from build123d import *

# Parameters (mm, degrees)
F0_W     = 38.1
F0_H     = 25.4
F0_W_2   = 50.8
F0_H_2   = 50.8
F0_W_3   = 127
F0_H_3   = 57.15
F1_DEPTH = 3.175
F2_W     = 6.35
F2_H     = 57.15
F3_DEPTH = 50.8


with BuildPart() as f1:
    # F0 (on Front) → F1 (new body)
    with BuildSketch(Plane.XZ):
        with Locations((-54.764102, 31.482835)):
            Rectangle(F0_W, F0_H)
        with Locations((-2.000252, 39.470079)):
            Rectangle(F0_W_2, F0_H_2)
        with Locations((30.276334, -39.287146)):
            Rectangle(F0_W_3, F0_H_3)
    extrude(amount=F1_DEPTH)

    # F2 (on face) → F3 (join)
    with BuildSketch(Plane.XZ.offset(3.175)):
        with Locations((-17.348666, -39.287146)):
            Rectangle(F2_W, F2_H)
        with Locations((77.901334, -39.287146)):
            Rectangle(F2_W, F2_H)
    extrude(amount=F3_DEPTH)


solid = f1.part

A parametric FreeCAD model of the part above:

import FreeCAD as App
import Part
import Sketcher

V = App.Vector
Q = App.Units.Quantity

doc = App.newDocument("Part")
body = doc.addObject("PartDesign::Body", "Body")
body.AllowCompound = True

sketch1 = doc.addObject("Sketcher::SketchObject", "Sketch")
body.addObject(sketch1)
sketch1.AttachmentSupport = (doc.XZ_Plane, [""])
sketch1.MapMode = "FlatFace"
sketch1.addGeometry([
    Part.LineSegment(V(-74, 44, 0), V(-74, 19, 0)),
    Part.LineSegment(V(-74, 19, 0), V(-36, 19, 0)),
    Part.LineSegment(V(-36, 19, 0), V(-36, 44, 0)),
    Part.LineSegment(V(-36, 44, 0), V(-74, 44, 0)),
    Part.LineSegment(V(-27, 65, 0), V(-27, 14, 0)),
    Part.LineSegment(V(-27, 14, 0), V(23, 14, 0)),
    Part.LineSegment(V(23, 14, 0), V(23, 65, 0)),
    Part.LineSegment(V(23, 65, 0), V(-27, 65, 0)),
    Part.LineSegment(V(-33, -11, 0), V(-33, -68, 0)),
    Part.LineSegment(V(-33, -68, 0), V(94, -68, 0)),
    Part.LineSegment(V(94, -68, 0), V(94, -11, 0)),
    Part.LineSegment(V(94, -11, 0), V(-33, -11, 0)),
], False)
sketch1.addConstraint([
    Sketcher.Constraint("Coincident", 0, 2, 1, 1),
    Sketcher.Constraint("Coincident", 1, 2, 2, 1),
    Sketcher.Constraint("Coincident", 2, 2, 3, 1),
    Sketcher.Constraint("Coincident", 3, 2, 0, 1),
    Sketcher.Constraint("Coincident", 4, 2, 5, 1),
    Sketcher.Constraint("Coincident", 5, 2, 6, 1),
    Sketcher.Constraint("Coincident", 6, 2, 7, 1),
    Sketcher.Constraint("Coincident", 7, 2, 4, 1),
    Sketcher.Constraint("Coincident", 8, 2, 9, 1),
    Sketcher.Constraint("Coincident", 9, 2, 10, 1),
    Sketcher.Constraint("Coincident", 10, 2, 11, 1),
    Sketcher.Constraint("Coincident", 11, 2, 8, 1),
    Sketcher.Constraint("Vertical", 0),
    Sketcher.Constraint("Horizontal", 1),
    Sketcher.Constraint("Vertical", 2),
    Sketcher.Constraint("Horizontal", 3),
    Sketcher.Constraint("Vertical", 4),
    Sketcher.Constraint("Horizontal", 5),
    Sketcher.Constraint("Vertical", 6),
    Sketcher.Constraint("Horizontal", 7),
    Sketcher.Constraint("Vertical", 8),
    Sketcher.Constraint("Horizontal", 9),
    Sketcher.Constraint("Vertical", 10),
    Sketcher.Constraint("Horizontal", 11),
    Sketcher.Constraint("Equal", 7, 4),
    Sketcher.Constraint("DistanceX", 5, 1, 5, 2, Q("2 in")),
    Sketcher.Constraint("DistanceX", 9, 1, 9, 2, Q("5 in")),
    Sketcher.Constraint("DistanceY", 0, 2, 0, 1, Q("1 in")),
    Sketcher.Constraint("DistanceX", 1, 1, 1, 2, Q("1.5 in")),
    Sketcher.Constraint("DistanceY", 8, 2, 8, 1, Q("2.25 in")),
    Sketcher.Constraint("DistanceX", 1, 2, -1, 1, 35.714102),
    Sketcher.Constraint("DistanceX", 4, 2, -1, 1, 27.400252),
    Sketcher.Constraint("DistanceY", -1, 1, 4, 2, 14.070079),
    Sketcher.Constraint("DistanceY", 8, 2, 1, 2, 86.644981),
    Sketcher.Constraint("DistanceY", -1, 1, 0, 2, 18.782835),
    Sketcher.Constraint("DistanceX", 8, 2, -1, 1, 33.223666),
])
pad1 = doc.addObject("PartDesign::Pad", "Pad")
body.addObject(pad1)
pad1.Profile = sketch1
pad1.Length = Q("0.125 in")

sketch2 = doc.addObject("Sketcher::SketchObject", "Sketch001")
body.addObject(sketch2)
sketch2.AttachmentSupport = (doc.XZ_Plane, [""])
sketch2.MapMode = "FlatFace"
sketch2.AttachmentOffset = App.Placement(V(0, 0, 0.125 * 25.4), App.Rotation())
sketch2.addGeometry([
    Part.LineSegment(V(-21, -11, 0), V(-21, -68, 0)),
    Part.LineSegment(V(-21, -68, 0), V(-14, -68, 0)),
    Part.LineSegment(V(-14, -68, 0), V(-14, -11, 0)),
    Part.LineSegment(V(-14, -11, 0), V(-21, -11, 0)),
    Part.LineSegment(V(75, -11, 0), V(75, -68, 0)),
    Part.LineSegment(V(75, -68, 0), V(81, -68, 0)),
    Part.LineSegment(V(81, -68, 0), V(81, -11, 0)),
    Part.LineSegment(V(81, -11, 0), V(75, -11, 0)),
], False)
sketch2.addConstraint([
    Sketcher.Constraint("Coincident", 0, 2, 1, 1),
    Sketcher.Constraint("Coincident", 1, 2, 2, 1),
    Sketcher.Constraint("Coincident", 2, 2, 3, 1),
    Sketcher.Constraint("Coincident", 3, 2, 0, 1),
    Sketcher.Constraint("Coincident", 4, 2, 5, 1),
    Sketcher.Constraint("Coincident", 5, 2, 6, 1),
    Sketcher.Constraint("Coincident", 6, 2, 7, 1),
    Sketcher.Constraint("Coincident", 7, 2, 4, 1),
    Sketcher.Constraint("Vertical", 0),
    Sketcher.Constraint("Horizontal", 1),
    Sketcher.Constraint("Vertical", 2),
    Sketcher.Constraint("Horizontal", 3),
    Sketcher.Constraint("Vertical", 4),
    Sketcher.Constraint("Horizontal", 5),
    Sketcher.Constraint("Vertical", 6),
    Sketcher.Constraint("Horizontal", 7),
    Sketcher.Constraint("Horizontal", 1, 2, 4, 2),
    Sketcher.Constraint("Horizontal", 3, 2, 6, 2),
    Sketcher.Constraint("Equal", 3, 5),
    Sketcher.Constraint("DistanceX", 0, 2, 5, 2, Q("4 in")),
    Sketcher.Constraint("DistanceX", 1, 1, 1, 2, Q("0.25 in")),
    Sketcher.Constraint("DistanceY", 0, 2, 0, 1, Q("2.25 in")),
    Sketcher.Constraint("DistanceX", 0, 2, -1, 1, 20.523666),
    Sketcher.Constraint("DistanceY", 0, 2, -1, 1, 67.862146),
])
pad2 = doc.addObject("PartDesign::Pad", "Pad001")
body.addObject(pad2)
pad2.Profile = sketch2
pad2.Length = Q("2 in")

doc.recompute()
